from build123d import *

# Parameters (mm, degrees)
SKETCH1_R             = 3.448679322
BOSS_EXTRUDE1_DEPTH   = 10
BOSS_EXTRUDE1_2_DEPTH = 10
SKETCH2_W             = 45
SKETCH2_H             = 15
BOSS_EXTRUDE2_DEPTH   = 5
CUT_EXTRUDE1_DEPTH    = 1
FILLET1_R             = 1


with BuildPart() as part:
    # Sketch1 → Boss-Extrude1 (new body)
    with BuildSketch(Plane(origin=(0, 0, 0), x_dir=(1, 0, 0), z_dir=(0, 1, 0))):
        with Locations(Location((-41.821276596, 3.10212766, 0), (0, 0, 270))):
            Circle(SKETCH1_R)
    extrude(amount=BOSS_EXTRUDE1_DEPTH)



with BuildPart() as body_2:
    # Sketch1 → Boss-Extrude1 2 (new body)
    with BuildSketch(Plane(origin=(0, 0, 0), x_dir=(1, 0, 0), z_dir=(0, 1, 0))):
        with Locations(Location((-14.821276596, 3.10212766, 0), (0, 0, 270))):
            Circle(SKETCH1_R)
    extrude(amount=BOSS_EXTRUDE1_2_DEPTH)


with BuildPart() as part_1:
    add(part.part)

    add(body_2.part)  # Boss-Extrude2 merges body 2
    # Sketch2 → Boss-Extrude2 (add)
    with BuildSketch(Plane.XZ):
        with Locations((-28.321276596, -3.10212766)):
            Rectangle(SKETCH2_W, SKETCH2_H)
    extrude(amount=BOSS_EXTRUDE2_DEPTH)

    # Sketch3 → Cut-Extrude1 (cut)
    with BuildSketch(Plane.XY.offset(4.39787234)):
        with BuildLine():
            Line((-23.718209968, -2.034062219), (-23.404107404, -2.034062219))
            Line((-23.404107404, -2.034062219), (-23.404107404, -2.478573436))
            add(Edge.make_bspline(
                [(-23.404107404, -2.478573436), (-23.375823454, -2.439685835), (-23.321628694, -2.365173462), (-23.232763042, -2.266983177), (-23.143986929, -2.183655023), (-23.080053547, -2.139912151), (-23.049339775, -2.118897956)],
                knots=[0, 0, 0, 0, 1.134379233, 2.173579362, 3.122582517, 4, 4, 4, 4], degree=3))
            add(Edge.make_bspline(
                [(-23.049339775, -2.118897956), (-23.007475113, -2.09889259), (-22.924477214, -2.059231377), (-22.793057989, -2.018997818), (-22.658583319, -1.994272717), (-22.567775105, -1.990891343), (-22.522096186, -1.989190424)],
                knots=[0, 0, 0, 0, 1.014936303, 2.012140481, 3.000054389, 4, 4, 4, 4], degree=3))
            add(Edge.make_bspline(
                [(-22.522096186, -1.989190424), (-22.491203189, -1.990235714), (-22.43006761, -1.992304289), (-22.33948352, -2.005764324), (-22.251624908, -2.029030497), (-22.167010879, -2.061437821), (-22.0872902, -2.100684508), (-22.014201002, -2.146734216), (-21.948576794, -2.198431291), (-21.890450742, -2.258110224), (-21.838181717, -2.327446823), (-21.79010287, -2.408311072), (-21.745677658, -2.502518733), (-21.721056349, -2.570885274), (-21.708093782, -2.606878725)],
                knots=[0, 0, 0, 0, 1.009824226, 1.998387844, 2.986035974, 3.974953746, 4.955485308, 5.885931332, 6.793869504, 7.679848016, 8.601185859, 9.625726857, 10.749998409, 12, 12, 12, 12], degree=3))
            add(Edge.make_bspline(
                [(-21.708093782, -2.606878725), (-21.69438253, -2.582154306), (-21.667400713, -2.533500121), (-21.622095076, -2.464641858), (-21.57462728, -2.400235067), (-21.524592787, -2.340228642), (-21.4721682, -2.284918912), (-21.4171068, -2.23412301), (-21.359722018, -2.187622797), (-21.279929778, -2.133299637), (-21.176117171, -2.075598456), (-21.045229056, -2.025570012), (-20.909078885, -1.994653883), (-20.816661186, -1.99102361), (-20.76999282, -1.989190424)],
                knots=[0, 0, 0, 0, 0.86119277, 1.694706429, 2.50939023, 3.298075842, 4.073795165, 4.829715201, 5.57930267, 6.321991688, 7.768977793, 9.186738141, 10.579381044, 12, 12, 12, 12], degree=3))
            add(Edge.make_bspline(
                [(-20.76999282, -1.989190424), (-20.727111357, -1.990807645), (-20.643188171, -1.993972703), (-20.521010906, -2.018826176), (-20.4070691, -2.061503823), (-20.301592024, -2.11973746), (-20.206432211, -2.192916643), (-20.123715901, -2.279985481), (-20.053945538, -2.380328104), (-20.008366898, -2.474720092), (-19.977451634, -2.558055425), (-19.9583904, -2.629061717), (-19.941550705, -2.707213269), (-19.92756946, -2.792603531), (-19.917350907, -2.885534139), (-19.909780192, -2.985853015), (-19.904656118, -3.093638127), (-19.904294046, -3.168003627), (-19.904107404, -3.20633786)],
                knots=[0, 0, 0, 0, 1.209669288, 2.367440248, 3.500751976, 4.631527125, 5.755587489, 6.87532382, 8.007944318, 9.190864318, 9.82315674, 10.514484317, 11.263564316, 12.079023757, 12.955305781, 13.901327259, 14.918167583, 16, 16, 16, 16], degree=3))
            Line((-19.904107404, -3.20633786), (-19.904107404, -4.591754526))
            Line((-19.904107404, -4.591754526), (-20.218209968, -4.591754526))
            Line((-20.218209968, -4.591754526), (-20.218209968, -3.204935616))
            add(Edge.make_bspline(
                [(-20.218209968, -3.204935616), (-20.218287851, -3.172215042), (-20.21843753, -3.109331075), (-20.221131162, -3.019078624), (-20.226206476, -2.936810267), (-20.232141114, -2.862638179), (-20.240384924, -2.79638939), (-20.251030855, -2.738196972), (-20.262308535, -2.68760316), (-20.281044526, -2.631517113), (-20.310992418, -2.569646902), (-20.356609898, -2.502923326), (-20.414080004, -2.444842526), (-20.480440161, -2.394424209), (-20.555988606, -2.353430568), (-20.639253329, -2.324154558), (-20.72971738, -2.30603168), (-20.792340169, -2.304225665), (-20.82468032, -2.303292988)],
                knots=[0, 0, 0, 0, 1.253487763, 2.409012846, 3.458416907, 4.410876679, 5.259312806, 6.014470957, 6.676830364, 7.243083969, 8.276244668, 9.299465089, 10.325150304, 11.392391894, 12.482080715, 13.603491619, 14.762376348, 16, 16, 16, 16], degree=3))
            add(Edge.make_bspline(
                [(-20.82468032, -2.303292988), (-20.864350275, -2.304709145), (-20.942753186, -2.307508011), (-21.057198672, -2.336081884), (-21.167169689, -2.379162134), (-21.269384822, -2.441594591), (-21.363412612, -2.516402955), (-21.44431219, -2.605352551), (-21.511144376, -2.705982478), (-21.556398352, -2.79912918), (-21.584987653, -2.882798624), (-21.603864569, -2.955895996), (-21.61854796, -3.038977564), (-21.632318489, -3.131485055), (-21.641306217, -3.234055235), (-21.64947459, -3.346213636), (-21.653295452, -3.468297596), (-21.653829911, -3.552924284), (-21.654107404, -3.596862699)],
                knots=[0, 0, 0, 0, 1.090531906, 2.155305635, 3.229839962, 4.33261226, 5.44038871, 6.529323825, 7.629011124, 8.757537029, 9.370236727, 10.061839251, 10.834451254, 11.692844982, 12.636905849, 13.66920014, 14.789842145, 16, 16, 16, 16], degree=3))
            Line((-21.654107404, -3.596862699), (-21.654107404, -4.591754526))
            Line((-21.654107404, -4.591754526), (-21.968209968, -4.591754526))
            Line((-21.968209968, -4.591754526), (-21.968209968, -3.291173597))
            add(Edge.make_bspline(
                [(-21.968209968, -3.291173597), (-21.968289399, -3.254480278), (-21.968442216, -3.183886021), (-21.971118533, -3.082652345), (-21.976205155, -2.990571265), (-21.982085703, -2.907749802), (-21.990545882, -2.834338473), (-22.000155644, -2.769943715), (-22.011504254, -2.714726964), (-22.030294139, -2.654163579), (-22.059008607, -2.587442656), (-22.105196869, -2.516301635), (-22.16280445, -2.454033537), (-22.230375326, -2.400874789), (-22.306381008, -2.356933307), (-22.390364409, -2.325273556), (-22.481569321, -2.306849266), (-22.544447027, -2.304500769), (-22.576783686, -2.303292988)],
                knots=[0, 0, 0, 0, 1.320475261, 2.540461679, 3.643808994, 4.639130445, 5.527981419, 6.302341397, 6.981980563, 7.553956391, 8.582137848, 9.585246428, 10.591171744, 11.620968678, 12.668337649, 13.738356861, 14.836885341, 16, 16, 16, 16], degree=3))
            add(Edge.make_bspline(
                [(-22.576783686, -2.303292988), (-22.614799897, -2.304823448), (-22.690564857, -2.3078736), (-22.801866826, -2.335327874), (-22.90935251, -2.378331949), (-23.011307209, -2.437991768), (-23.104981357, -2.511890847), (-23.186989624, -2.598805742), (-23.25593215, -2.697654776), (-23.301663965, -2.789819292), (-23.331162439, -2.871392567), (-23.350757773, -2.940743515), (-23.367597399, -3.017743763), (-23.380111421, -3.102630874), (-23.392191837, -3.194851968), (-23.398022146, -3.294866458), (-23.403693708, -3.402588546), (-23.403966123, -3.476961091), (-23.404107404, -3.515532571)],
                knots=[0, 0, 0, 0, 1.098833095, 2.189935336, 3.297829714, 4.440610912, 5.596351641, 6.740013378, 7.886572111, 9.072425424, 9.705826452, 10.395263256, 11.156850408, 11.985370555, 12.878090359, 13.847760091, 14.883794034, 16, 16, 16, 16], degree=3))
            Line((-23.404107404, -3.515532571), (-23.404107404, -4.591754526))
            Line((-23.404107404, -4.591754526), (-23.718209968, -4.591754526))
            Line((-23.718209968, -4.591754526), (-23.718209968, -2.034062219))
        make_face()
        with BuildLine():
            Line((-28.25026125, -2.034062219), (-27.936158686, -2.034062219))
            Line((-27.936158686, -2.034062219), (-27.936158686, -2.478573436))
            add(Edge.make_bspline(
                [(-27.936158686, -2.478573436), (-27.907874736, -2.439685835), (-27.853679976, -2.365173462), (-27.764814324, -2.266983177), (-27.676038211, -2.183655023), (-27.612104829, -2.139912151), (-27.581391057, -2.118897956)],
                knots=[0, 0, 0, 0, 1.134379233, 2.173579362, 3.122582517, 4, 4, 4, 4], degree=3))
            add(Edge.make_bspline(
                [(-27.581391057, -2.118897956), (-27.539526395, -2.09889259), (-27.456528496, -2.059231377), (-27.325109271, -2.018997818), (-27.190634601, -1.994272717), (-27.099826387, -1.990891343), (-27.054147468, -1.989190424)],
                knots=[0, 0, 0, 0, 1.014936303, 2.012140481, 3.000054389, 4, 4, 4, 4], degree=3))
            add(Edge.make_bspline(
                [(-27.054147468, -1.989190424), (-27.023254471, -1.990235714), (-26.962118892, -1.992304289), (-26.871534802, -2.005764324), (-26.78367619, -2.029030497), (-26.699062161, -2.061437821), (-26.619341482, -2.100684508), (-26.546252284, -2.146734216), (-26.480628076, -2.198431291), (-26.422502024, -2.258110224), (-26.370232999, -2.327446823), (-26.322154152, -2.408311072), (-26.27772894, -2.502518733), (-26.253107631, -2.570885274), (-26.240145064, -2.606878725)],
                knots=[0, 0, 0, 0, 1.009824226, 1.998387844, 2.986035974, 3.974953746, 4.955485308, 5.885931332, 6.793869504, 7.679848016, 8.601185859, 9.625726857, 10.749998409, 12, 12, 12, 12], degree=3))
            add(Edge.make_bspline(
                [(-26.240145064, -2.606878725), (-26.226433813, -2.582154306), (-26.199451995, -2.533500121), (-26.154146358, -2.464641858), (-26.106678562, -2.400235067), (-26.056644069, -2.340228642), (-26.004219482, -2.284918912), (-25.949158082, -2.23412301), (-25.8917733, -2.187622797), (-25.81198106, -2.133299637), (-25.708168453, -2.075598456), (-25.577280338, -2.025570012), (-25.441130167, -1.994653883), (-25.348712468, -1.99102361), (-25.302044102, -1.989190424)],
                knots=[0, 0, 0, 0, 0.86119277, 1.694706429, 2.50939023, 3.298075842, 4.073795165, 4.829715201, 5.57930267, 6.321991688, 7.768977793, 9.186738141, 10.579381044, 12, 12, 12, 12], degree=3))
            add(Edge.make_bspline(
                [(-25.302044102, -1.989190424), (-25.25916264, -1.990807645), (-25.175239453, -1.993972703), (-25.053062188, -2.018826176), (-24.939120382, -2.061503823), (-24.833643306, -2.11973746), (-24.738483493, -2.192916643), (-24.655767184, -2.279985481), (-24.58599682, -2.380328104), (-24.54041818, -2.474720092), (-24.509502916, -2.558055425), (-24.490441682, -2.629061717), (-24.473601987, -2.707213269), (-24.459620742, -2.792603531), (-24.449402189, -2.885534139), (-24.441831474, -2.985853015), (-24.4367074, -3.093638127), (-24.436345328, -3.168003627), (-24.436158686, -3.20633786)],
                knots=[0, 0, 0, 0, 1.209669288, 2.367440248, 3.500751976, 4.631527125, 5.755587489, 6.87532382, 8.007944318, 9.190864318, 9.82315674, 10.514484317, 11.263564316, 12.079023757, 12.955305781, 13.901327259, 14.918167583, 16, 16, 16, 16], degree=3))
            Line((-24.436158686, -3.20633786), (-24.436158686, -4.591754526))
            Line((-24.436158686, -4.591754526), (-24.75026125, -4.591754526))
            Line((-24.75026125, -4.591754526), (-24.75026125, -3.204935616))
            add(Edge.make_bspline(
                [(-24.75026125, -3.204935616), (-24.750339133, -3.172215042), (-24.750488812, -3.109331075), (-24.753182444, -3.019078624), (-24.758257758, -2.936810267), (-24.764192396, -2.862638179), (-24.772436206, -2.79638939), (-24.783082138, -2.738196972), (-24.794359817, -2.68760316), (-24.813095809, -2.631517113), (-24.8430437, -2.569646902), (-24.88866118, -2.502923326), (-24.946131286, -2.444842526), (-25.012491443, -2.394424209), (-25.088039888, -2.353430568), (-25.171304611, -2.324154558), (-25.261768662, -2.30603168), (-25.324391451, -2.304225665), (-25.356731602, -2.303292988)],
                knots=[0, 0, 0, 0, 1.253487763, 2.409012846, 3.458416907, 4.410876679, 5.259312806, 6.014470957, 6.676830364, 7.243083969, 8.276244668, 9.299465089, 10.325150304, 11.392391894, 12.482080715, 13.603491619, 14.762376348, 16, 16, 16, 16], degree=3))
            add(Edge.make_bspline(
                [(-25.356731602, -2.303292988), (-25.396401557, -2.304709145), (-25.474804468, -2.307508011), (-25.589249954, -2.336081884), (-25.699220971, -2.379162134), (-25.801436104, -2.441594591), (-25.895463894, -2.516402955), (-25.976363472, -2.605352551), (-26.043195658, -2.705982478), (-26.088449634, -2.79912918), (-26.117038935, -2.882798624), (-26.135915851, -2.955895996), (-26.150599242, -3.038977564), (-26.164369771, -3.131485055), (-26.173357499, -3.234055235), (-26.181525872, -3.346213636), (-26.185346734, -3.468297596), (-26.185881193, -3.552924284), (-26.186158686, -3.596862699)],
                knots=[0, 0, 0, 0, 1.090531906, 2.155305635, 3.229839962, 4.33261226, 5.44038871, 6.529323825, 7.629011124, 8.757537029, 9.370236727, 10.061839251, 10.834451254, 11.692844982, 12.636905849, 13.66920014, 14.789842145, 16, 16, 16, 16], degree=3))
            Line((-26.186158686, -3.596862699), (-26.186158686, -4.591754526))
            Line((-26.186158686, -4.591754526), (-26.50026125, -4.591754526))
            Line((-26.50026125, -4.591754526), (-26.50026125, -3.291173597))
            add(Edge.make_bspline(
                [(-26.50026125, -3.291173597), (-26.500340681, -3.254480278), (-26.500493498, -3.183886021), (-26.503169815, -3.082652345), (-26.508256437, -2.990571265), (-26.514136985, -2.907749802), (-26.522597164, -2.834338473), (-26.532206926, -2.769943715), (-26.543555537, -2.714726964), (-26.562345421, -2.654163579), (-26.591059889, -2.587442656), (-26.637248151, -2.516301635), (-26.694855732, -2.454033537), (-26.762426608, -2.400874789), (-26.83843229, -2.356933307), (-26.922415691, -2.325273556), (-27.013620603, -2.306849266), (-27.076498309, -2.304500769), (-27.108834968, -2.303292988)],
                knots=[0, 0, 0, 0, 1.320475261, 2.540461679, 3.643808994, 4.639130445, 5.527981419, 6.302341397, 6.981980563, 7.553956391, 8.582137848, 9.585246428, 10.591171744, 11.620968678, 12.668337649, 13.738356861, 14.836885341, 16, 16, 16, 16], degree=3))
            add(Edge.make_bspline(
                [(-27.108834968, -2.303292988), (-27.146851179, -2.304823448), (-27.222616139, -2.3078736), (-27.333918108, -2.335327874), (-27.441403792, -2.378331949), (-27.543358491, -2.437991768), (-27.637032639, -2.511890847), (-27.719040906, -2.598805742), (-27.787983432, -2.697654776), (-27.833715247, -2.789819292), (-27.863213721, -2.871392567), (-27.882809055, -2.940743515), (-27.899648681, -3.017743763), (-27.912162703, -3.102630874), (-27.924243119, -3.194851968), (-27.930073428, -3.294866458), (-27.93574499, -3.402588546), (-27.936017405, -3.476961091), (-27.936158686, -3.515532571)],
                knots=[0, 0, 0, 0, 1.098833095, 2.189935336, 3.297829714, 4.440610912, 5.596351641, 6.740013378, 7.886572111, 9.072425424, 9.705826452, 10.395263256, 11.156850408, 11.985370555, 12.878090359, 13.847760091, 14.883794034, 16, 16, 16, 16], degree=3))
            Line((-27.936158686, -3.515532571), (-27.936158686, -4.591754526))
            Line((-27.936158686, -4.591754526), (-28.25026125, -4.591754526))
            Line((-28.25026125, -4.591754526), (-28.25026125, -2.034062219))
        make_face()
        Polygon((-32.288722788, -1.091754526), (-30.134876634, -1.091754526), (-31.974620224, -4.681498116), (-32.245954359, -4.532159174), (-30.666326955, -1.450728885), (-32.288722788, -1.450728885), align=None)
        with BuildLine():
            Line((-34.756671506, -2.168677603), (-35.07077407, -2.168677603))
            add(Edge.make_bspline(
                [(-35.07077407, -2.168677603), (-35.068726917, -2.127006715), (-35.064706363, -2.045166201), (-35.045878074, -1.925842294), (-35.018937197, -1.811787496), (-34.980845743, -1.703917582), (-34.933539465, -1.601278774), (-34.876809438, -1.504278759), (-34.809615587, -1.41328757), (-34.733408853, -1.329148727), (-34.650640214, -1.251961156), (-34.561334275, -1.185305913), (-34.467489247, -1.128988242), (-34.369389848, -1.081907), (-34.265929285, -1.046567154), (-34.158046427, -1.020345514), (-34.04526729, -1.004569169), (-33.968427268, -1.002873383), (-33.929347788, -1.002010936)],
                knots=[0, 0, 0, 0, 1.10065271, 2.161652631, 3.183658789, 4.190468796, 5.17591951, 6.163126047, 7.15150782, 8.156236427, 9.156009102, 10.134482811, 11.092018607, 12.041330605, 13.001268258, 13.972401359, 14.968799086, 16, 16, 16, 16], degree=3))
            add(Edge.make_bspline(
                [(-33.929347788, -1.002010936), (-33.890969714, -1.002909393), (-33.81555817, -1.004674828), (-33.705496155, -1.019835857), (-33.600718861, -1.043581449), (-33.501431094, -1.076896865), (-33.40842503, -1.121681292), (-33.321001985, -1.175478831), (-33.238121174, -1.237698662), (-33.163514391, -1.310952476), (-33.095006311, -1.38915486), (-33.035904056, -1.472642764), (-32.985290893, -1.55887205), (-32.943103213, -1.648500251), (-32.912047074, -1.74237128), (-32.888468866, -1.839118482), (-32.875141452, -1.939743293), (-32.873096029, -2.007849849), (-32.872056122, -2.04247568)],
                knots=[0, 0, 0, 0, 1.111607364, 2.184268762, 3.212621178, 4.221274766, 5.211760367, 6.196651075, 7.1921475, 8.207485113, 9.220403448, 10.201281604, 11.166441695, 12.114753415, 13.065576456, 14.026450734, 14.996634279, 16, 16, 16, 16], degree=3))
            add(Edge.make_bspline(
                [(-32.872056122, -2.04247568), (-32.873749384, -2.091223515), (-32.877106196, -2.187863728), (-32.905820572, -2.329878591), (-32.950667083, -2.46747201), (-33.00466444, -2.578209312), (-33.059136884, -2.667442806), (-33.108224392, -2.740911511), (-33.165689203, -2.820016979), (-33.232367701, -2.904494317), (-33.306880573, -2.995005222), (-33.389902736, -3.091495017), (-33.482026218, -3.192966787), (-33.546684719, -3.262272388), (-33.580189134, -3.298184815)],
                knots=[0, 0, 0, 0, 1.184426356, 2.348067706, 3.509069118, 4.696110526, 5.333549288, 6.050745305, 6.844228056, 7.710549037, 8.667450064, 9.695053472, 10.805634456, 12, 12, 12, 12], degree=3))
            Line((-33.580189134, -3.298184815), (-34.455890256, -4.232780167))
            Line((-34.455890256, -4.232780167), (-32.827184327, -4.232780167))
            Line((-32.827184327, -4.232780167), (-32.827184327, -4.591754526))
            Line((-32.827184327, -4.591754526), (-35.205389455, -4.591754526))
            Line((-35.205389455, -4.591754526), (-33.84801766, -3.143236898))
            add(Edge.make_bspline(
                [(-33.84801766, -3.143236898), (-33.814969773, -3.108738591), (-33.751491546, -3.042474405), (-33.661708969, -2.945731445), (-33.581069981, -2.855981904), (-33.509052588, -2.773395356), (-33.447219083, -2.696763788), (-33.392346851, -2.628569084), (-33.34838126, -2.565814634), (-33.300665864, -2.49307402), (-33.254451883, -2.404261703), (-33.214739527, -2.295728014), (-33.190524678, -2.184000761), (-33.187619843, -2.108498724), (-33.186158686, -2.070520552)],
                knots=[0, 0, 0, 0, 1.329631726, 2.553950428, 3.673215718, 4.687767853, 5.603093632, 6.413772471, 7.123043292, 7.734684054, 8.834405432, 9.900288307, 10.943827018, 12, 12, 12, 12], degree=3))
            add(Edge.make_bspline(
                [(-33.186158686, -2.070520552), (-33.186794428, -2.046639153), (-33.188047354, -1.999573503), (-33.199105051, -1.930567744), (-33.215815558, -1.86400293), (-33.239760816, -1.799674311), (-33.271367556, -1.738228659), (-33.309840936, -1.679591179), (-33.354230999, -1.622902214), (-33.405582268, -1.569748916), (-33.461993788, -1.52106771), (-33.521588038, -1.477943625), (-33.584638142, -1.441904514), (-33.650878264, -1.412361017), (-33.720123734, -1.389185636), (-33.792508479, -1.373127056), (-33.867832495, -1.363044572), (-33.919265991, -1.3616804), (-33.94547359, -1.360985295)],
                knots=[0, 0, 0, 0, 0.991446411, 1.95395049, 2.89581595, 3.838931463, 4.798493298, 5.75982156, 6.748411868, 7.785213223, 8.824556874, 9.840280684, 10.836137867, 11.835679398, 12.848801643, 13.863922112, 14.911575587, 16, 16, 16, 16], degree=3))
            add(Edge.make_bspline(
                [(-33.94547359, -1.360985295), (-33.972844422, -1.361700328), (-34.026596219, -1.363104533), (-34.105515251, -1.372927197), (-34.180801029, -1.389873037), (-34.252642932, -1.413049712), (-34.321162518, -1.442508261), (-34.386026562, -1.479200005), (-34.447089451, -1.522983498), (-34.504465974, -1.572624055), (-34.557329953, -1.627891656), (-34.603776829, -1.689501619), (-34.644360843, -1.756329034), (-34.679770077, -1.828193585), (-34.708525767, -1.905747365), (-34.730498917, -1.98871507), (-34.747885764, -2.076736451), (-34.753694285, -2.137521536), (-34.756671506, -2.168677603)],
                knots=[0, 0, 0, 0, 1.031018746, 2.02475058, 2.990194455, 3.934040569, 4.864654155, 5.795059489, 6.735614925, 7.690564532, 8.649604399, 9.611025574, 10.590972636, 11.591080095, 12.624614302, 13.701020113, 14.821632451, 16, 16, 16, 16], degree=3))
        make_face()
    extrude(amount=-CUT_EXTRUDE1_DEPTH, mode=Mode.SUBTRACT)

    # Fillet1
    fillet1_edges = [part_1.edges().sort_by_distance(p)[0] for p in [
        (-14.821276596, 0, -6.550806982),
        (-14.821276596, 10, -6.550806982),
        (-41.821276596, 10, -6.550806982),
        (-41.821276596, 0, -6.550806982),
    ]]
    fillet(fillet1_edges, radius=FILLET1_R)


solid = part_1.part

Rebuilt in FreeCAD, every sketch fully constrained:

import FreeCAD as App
import Part
import Sketcher
from FreeCAD import Vector


def edges_at(feature, points):
    """Names of the edges that pass closest to the given points."""
    edges = feature.Shape.Edges
    near = lambda p: min(range(len(edges)), key=lambda i: edges[i].distToShape(Part.Vertex(*p))[0])
    return sorted({f"Edge{near(p) + 1}" for p in points})


def add_polygon(sketch, points):
    """Adds a closed chain of lines whose ends are joined by coincident constraints."""
    first, n = sketch.GeometryCount, len(points)
    for a, b in zip(points, points[1:] + points[:1]):
        sketch.addGeometry(Part.LineSegment(App.Vector(*a, 0), App.Vector(*b, 0)), False)
    for i in range(n):
        sketch.addConstraint(Sketcher.Constraint("Coincident", first + i, 2, first + (i + 1) % n, 1))

doc = App.newDocument("Part")
body = doc.addObject("PartDesign::Body", "Body")

sketch1 = body.newObject("Sketcher::SketchObject", "Sketch")
sketch1.AttachmentSupport = (doc.getObject("XZ_Plane"), [""])
sketch1.MapMode = "FlatFace"
sketch1.addGeometry(Part.Circle(Vector(-41.8, -3.1, 0), Vector(0, 0, 1), 3.4), False)
sketch1.addConstraint([
    Sketcher.Constraint("Diameter", 0, 6.897359),
    Sketcher.Constraint("DistanceX", 0, 3, -1, 1, 41.821277),
    Sketcher.Constraint("DistanceY", 0, 3, -1, 1, 3.102128),
])
pad1 = body.newObject("PartDesign::Pad", "Pad")
pad1.Profile = sketch1
pad1.Length = 10
pad1.Reversed = True
body2 = doc.addObject("PartDesign::Body", "Body001")

sketch2 = body2.newObject("Sketcher::SketchObject", "Sketch001")
sketch2.AttachmentSupport = (doc.getObject("XZ_Plane001"), [""])
sketch2.MapMode = "FlatFace"
sketch2.addGeometry(Part.Circle(Vector(-14.8, -3.1, 0), Vector(0, 0, 1), 3.4), False)
sketch2.addConstraint([
    Sketcher.Constraint("Diameter", 0, 6.897359),
    Sketcher.Constraint("DistanceX", 0, 3, -1, 1, 14.821277),
    Sketcher.Constraint("DistanceY", 0, 3, -1, 1, 3.102128),
])
pad2 = body2.newObject("PartDesign::Pad", "Pad001")
pad2.Profile = sketch2
pad2.Length = 10
pad2.Reversed = True
body.AllowCompound = True
doc.recompute()

boolean = body.newObject("PartDesign::Boolean", "Boolean")
boolean.Type = "Fuse"
boolean.addObjects([body2])

sketch3 = body.newObject("Sketcher::SketchObject", "Sketch002")
sketch3.AttachmentSupport = (doc.getObject("XZ_Plane"), [""])
sketch3.MapMode = "FlatFace"
add_polygon(sketch3, [(-51, 4), (-51, -11), (-6, -11), (-6, 4)])
sketch3.addConstraint([
    Sketcher.Constraint("Vertical", 0),
    Sketcher.Constraint("Horizontal", 1),
    Sketcher.Constraint("Vertical", 2),
    Sketcher.Constraint("Horizontal", 3),
    Sketcher.Constraint("DistanceX", 1, 1, 1, 2, 45.0),
    Sketcher.Constraint("DistanceY", 0, 2, 0, 1, 15.0),
    Sketcher.Constraint("DistanceX", 0, 2, -1, 1, 50.821277),
    Sketcher.Constraint("DistanceY", 0, 2, -1, 1, 10.602128),
])
pad3 = body.newObject("PartDesign::Pad", "Pad002")
pad3.Profile = sketch3
pad3.Length = 5

sketch4 = body.newObject("Sketcher::SketchObject", "Sketch003")
sketch4.AttachmentSupport = (doc.getObject("XY_Plane"), [""])
sketch4.MapMode = "FlatFace"
sketch4.AttachmentOffset = App.Placement(Vector(0, 0, 4.397872), App.Rotation())
sketch4.addGeometry(Part.LineSegment(Vector(-23.404107, -2.034062, 0), Vector(-23.71821, -2.034062, 0)), False)
sketch4.addGeometry(Part.LineSegment(Vector(-23.71821, -2.034062, 0), Vector(-23.71821, -4.591755, 0)), False)
sketch4.addGeometry(Part.LineSegment(Vector(-23.71821, -4.591755, 0), Vector(-23.404107, -4.591755, 0)), False)
sketch4.addGeometry(Part.LineSegment(Vector(-23.404107, -4.591755, 0), Vector(-23.404107, -3.515533, 0)), False)
sketch4.addGeometry(Part.BSplineCurve([Vector(-22.576784, -2.303293, 0), Vector(-22.6148, -2.304823, 0), Vector(-22.690565, -2.307874, 0), Vector(-22.801867, -2.335328, 0), Vector(-22.909353, -2.378332, 0), Vector(-23.011307, -2.437992, 0), Vector(-23.104981, -2.511891, 0), Vector(-23.18699, -2.598806, 0), Vector(-23.255932, -2.697655, 0), Vector(-23.301664, -2.789819, 0), Vector(-23.331162, -2.871393, 0), Vector(-23.350758, -2.940744, 0), Vector(-23.367597, -3.017744, 0), Vector(-23.380111, -3.102631, 0), Vector(-23.392192, -3.194852, 0), Vector(-23.398022, -3.294866, 0), Vector(-23.403694, -3.402589, 0), Vector(-23.403966, -3.476961, 0), Vector(-23.404107, -3.515533, 0)], [4, 1, 1, 1, 1, 1, 1, 1, 1, 1, 1, 1, 1, 1, 1, 1, 4], [0, 1.098833095, 2.189935336, 3.297829714, 4.440610912, 5.596351641, 6.740013378, 7.886572111, 9.072425424, 9.705826452, 10.395263256, 11.156850408, 11.985370555, 12.878090359, 13.847760091, 14.883794034, 16], False, 3, [1, 1, 1, 1, 1, 1, 1, 1, 1, 1, 1, 1, 1, 1, 1, 1, 1, 1, 1], False), False)
sketch4.addGeometry(Part.BSplineCurve([Vector(-21.96821, -3.291174, 0), Vector(-21.968289, -3.25448, 0), Vector(-21.968442, -3.183886, 0), Vector(-21.971119, -3.082652, 0), Vector(-21.976205, -2.990571, 0), Vector(-21.982086, -2.90775, 0), Vector(-21.990546, -2.834338, 0), Vector(-22.000156, -2.769944, 0), Vector(-22.011504, -2.714727, 0), Vector(-22.030294, -2.654164, 0), Vector(-22.059009, -2.587443, 0), Vector(-22.105197, -2.516302, 0), Vector(-22.162804, -2.454034, 0), Vector(-22.230375, -2.400875, 0), Vector(-22.306381, -2.356933, 0), Vector(-22.390364, -2.325274, 0), Vector(-22.481569, -2.306849, 0), Vector(-22.544447, -2.304501, 0), Vector(-22.576784, -2.303293, 0)], [4, 1, 1, 1, 1, 1, 1, 1, 1, 1, 1, 1, 1, 1, 1, 1, 4], [0, 1.320475261, 2.540461679, 3.643808994, 4.639130445, 5.527981419, 6.302341397, 6.981980563, 7.553956391, 8.582137848, 9.585246428, 10.591171744, 11.620968678, 12.668337649, 13.738356861, 14.836885341, 16], False, 3, [1, 1, 1, 1, 1, 1, 1, 1, 1, 1, 1, 1, 1, 1, 1, 1, 1, 1, 1], False), False)
sketch4.addGeometry(Part.LineSegment(Vector(-21.96821, -3.291174, 0), Vector(-21.96821, -4.591755, 0)), False)
sketch4.addGeometry(Part.LineSegment(Vector(-21.96821, -4.591755, 0), Vector(-21.654107, -4.591755, 0)), False)
sketch4.addGeometry(Part.LineSegment(Vector(-21.654107, -4.591755, 0), Vector(-21.654107, -3.596863, 0)), False)
sketch4.addGeometry(Part.BSplineCurve([Vector(-20.82468, -2.303293, 0), Vector(-20.86435, -2.304709, 0), Vector(-20.942753, -2.307508, 0), Vector(-21.057199, -2.336082, 0), Vector(-21.16717, -2.379162, 0), Vector(-21.269385, -2.441595, 0), Vector(-21.363413, -2.516403, 0), Vector(-21.444312, -2.605353, 0), Vector(-21.511144, -2.705982, 0), Vector(-21.556398, -2.799129, 0), Vector(-21.584988, -2.882799, 0), Vector(-21.603865, -2.955896, 0), Vector(-21.618548, -3.038978, 0), Vector(-21.632318, -3.131485, 0), Vector(-21.641306, -3.234055, 0), Vector(-21.649475, -3.346214, 0), Vector(-21.653295, -3.468298, 0), Vector(-21.65383, -3.552924, 0), Vector(-21.654107, -3.596863, 0)], [4, 1, 1, 1, 1, 1, 1, 1, 1, 1, 1, 1, 1, 1, 1, 1, 4], [0, 1.090531906, 2.155305635, 3.229839962, 4.33261226, 5.44038871, 6.529323825, 7.629011124, 8.757537029, 9.370236727, 10.061839251, 10.834451254, 11.692844982, 12.636905849, 13.66920014, 14.789842145, 16], False, 3, [1, 1, 1, 1, 1, 1, 1, 1, 1, 1, 1, 1, 1, 1, 1, 1, 1, 1, 1], False), False)
sketch4.addGeometry(Part.BSplineCurve([Vector(-20.21821, -3.204936, 0), Vector(-20.218288, -3.172215, 0), Vector(-20.218438, -3.109331, 0), Vector(-20.221131, -3.019079, 0), Vector(-20.226206, -2.93681, 0), Vector(-20.232141, -2.862638, 0), Vector(-20.240385, -2.796389, 0), Vector(-20.251031, -2.738197, 0), Vector(-20.262309, -2.687603, 0), Vector(-20.281045, -2.631517, 0), Vector(-20.310992, -2.569647, 0), Vector(-20.35661, -2.502923, 0), Vector(-20.41408, -2.444843, 0), Vector(-20.48044, -2.394424, 0), Vector(-20.555989, -2.353431, 0), Vector(-20.639253, -2.324155, 0), Vector(-20.729717, -2.306032, 0), Vector(-20.79234, -2.304226, 0), Vector(-20.82468, -2.303293, 0)], [4, 1, 1, 1, 1, 1, 1, 1, 1, 1, 1, 1, 1, 1, 1, 1, 4], [0, 1.253487763, 2.409012846, 3.458416907, 4.410876679, 5.259312806, 6.014470957, 6.676830364, 7.243083969, 8.276244668, 9.299465089, 10.325150304, 11.392391894, 12.482080715, 13.603491619, 14.762376348, 16], False, 3, [1, 1, 1, 1, 1, 1, 1, 1, 1, 1, 1, 1, 1, 1, 1, 1, 1, 1, 1], False), False)
sketch4.addGeometry(Part.LineSegment(Vector(-20.21821, -3.204936, 0), Vector(-20.21821, -4.591755, 0)), False)
sketch4.addGeometry(Part.LineSegment(Vector(-20.21821, -4.591755, 0), Vector(-19.904107, -4.591755, 0)), False)
sketch4.addGeometry(Part.LineSegment(Vector(-19.904107, -4.591755, 0), Vector(-19.904107, -3.206338, 0)), False)
sketch4.addGeometry(Part.BSplineCurve([Vector(-20.769993, -1.98919, 0), Vector(-20.727111, -1.990808, 0), Vector(-20.643188, -1.993973, 0), Vector(-20.521011, -2.018826, 0), Vector(-20.407069, -2.061504, 0), Vector(-20.301592, -2.119737, 0), Vector(-20.206432, -2.192917, 0), Vector(-20.123716, -2.279985, 0), Vector(-20.053946, -2.380328, 0), Vector(-20.008367, -2.47472, 0), Vector(-19.977452, -2.558055, 0), Vector(-19.95839, -2.629062, 0), Vector(-19.941551, -2.707213, 0), Vector(-19.927569, -2.792604, 0), Vector(-19.917351, -2.885534, 0), Vector(-19.90978, -2.985853, 0), Vector(-19.904656, -3.093638, 0), Vector(-19.904294, -3.168004, 0), Vector(-19.904107, -3.206338, 0)], [4, 1, 1, 1, 1, 1, 1, 1, 1, 1, 1, 1, 1, 1, 1, 1, 4], [0, 1.209669288, 2.367440248, 3.500751976, 4.631527125, 5.755587489, 6.87532382, 8.007944318, 9.190864318, 9.82315674, 10.514484317, 11.263564316, 12.079023757, 12.955305781, 13.901327259, 14.918167583, 16], False, 3, [1, 1, 1, 1, 1, 1, 1, 1, 1, 1, 1, 1, 1, 1, 1, 1, 1, 1, 1], False), False)
sketch4.addGeometry(Part.BSplineCurve([Vector(-21.708094, -2.606879, 0), Vector(-21.694383, -2.582154, 0), Vector(-21.667401, -2.5335, 0), Vector(-21.622095, -2.464642, 0), Vector(-21.574627, -2.400235, 0), Vector(-21.524593, -2.340229, 0), Vector(-21.472168, -2.284919, 0), Vector(-21.417107, -2.234123, 0), Vector(-21.359722, -2.187623, 0), Vector(-21.27993, -2.1333, 0), Vector(-21.176117, -2.075598, 0), Vector(-21.045229, -2.02557, 0), Vector(-20.909079, -1.994654, 0), Vector(-20.816661, -1.991024, 0), Vector(-20.769993, -1.98919, 0)], [4, 1, 1, 1, 1, 1, 1, 1, 1, 1, 1, 1, 4], [0, 0.86119277, 1.694706429, 2.50939023, 3.298075842, 4.073795165, 4.829715201, 5.57930267, 6.321991688, 7.768977793, 9.186738141, 10.579381044, 12], False, 3, [1, 1, 1, 1, 1, 1, 1, 1, 1, 1, 1, 1, 1, 1, 1], False), False)
sketch4.addGeometry(Part.BSplineCurve([Vector(-22.522096, -1.98919, 0), Vector(-22.491203, -1.990236, 0), Vector(-22.430068, -1.992304, 0), Vector(-22.339484, -2.005764, 0), Vector(-22.251625, -2.02903, 0), Vector(-22.167011, -2.061438, 0), Vector(-22.08729, -2.100685, 0), Vector(-22.014201, -2.146734, 0), Vector(-21.948577, -2.198431, 0), Vector(-21.890451, -2.25811, 0), Vector(-21.838182, -2.327447, 0), Vector(-21.790103, -2.408311, 0), Vector(-21.745678, -2.502519, 0), Vector(-21.721056, -2.570885, 0), Vector(-21.708094, -2.606879, 0)], [4, 1, 1, 1, 1, 1, 1, 1, 1, 1, 1, 1, 4], [0, 1.009824226, 1.998387844, 2.986035974, 3.974953746, 4.955485308, 5.885931332, 6.793869504, 7.679848016, 8.601185859, 9.625726857, 10.749998409, 12], False, 3, [1, 1, 1, 1, 1, 1, 1, 1, 1, 1, 1, 1, 1, 1, 1], False), False)
sketch4.addGeometry(Part.BSplineCurve([Vector(-23.04934, -2.118898, 0), Vector(-23.007475, -2.098893, 0), Vector(-22.924477, -2.059231, 0), Vector(-22.793058, -2.018998, 0), Vector(-22.658583, -1.994273, 0), Vector(-22.567775, -1.990891, 0), Vector(-22.522096, -1.98919, 0)], [4, 1, 1, 1, 4], [0, 1.014936303, 2.012140481, 3.000054389, 4], False, 3, [1, 1, 1, 1, 1, 1, 1], False), False)
sketch4.addGeometry(Part.BSplineCurve([Vector(-23.404107, -2.478573, 0), Vector(-23.375823, -2.439686, 0), Vector(-23.321629, -2.365173, 0), Vector(-23.232763, -2.266983, 0), Vector(-23.143987, -2.183655, 0), Vector(-23.080054, -2.139912, 0), Vector(-23.04934, -2.118898, 0)], [4, 1, 1, 1, 4], [0, 1.134379233, 2.173579362, 3.122582517, 4], False, 3, [1, 1, 1, 1, 1, 1, 1], False), False)
sketch4.addGeometry(Part.LineSegment(Vector(-23.404107, -2.478573, 0), Vector(-23.404107, -2.034062, 0)), False)
sketch4.addGeometry(Part.LineSegment(Vector(-27.936159, -2.034062, 0), Vector(-28.250261, -2.034062, 0)), False)
sketch4.addGeometry(Part.LineSegment(Vector(-28.250261, -2.034062, 0), Vector(-28.250261, -4.591755, 0)), False)
sketch4.addGeometry(Part.LineSegment(Vector(-28.250261, -4.591755, 0), Vector(-27.936159, -4.591755, 0)), False)
sketch4.addGeometry(Part.LineSegment(Vector(-27.936159, -4.591755, 0), Vector(-27.936159, -3.515533, 0)), False)
sketch4.addGeometry(Part.BSplineCurve([Vector(-27.108835, -2.303293, 0), Vector(-27.146851, -2.304823, 0), Vector(-27.222616, -2.307874, 0), Vector(-27.333918, -2.335328, 0), Vector(-27.441404, -2.378332, 0), Vector(-27.543358, -2.437992, 0), Vector(-27.637033, -2.511891, 0), Vector(-27.719041, -2.598806, 0), Vector(-27.787983, -2.697655, 0), Vector(-27.833715, -2.789819, 0), Vector(-27.863214, -2.871393, 0), Vector(-27.882809, -2.940744, 0), Vector(-27.899649, -3.017744, 0), Vector(-27.912163, -3.102631, 0), Vector(-27.924243, -3.194852, 0), Vector(-27.930073, -3.294866, 0), Vector(-27.935745, -3.402589, 0), Vector(-27.936017, -3.476961, 0), Vector(-27.936159, -3.515533, 0)], [4, 1, 1, 1, 1, 1, 1, 1, 1, 1, 1, 1, 1, 1, 1, 1, 4], [0, 1.098833095, 2.189935336, 3.297829714, 4.440610912, 5.596351641, 6.740013378, 7.886572111, 9.072425424, 9.705826452, 10.395263256, 11.156850408, 11.985370555, 12.878090359, 13.847760091, 14.883794034, 16], False, 3, [1, 1, 1, 1, 1, 1, 1, 1, 1, 1, 1, 1, 1, 1, 1, 1, 1, 1, 1], False), False)
sketch4.addGeometry(Part.BSplineCurve([Vector(-26.500261, -3.291174, 0), Vector(-26.500341, -3.25448, 0), Vector(-26.500493, -3.183886, 0), Vector(-26.50317, -3.082652, 0), Vector(-26.508256, -2.990571, 0), Vector(-26.514137, -2.90775, 0), Vector(-26.522597, -2.834338, 0), Vector(-26.532207, -2.769944, 0), Vector(-26.543556, -2.714727, 0), Vector(-26.562345, -2.654164, 0), Vector(-26.59106, -2.587443, 0), Vector(-26.637248, -2.516302, 0), Vector(-26.694856, -2.454034, 0), Vector(-26.762427, -2.400875, 0), Vector(-26.838432, -2.356933, 0), Vector(-26.922416, -2.325274, 0), Vector(-27.013621, -2.306849, 0), Vector(-27.076498, -2.304501, 0), Vector(-27.108835, -2.303293, 0)], [4, 1, 1, 1, 1, 1, 1, 1, 1, 1, 1, 1, 1, 1, 1, 1, 4], [0, 1.320475261, 2.540461679, 3.643808994, 4.639130445, 5.527981419, 6.302341397, 6.981980563, 7.553956391, 8.582137848, 9.585246428, 10.591171744, 11.620968678, 12.668337649, 13.738356861, 14.836885341, 16], False, 3, [1, 1, 1, 1, 1, 1, 1, 1, 1, 1, 1, 1, 1, 1, 1, 1, 1, 1, 1], False), False)
sketch4.addGeometry(Part.LineSegment(Vector(-26.500261, -3.291174, 0), Vector(-26.500261, -4.591755, 0)), False)
sketch4.addGeometry(Part.LineSegment(Vector(-26.500261, -4.591755, 0), Vector(-26.186159, -4.591755, 0)), False)
sketch4.addGeometry(Part.LineSegment(Vector(-26.186159, -4.591755, 0), Vector(-26.186159, -3.596863, 0)), False)
sketch4.addGeometry(Part.BSplineCurve([Vector(-25.356732, -2.303293, 0), Vector(-25.396402, -2.304709, 0), Vector(-25.474804, -2.307508, 0), Vector(-25.58925, -2.336082, 0), Vector(-25.699221, -2.379162, 0), Vector(-25.801436, -2.441595, 0), Vector(-25.895464, -2.516403, 0), Vector(-25.976363, -2.605353, 0), Vector(-26.043196, -2.705982, 0), Vector(-26.08845, -2.799129, 0), Vector(-26.117039, -2.882799, 0), Vector(-26.135916, -2.955896, 0), Vector(-26.150599, -3.038978, 0), Vector(-26.16437, -3.131485, 0), Vector(-26.173357, -3.234055, 0), Vector(-26.181526, -3.346214, 0), Vector(-26.185347, -3.468298, 0), Vector(-26.185881, -3.552924, 0), Vector(-26.186159, -3.596863, 0)], [4, 1, 1, 1, 1, 1, 1, 1, 1, 1, 1, 1, 1, 1, 1, 1, 4], [0, 1.090531906, 2.155305635, 3.229839962, 4.33261226, 5.44038871, 6.529323825, 7.629011124, 8.757537029, 9.370236727, 10.061839251, 10.834451254, 11.692844982, 12.636905849, 13.66920014, 14.789842145, 16], False, 3, [1, 1, 1, 1, 1, 1, 1, 1, 1, 1, 1, 1, 1, 1, 1, 1, 1, 1, 1], False), False)
sketch4.addGeometry(Part.BSplineCurve([Vector(-24.750261, -3.204936, 0), Vector(-24.750339, -3.172215, 0), Vector(-24.750489, -3.109331, 0), Vector(-24.753182, -3.019079, 0), Vector(-24.758258, -2.93681, 0), Vector(-24.764192, -2.862638, 0), Vector(-24.772436, -2.796389, 0), Vector(-24.783082, -2.738197, 0), Vector(-24.79436, -2.687603, 0), Vector(-24.813096, -2.631517, 0), Vector(-24.843044, -2.569647, 0), Vector(-24.888661, -2.502923, 0), Vector(-24.946131, -2.444843, 0), Vector(-25.012491, -2.394424, 0), Vector(-25.08804, -2.353431, 0), Vector(-25.171305, -2.324155, 0), Vector(-25.261769, -2.306032, 0), Vector(-25.324391, -2.304226, 0), Vector(-25.356732, -2.303293, 0)], [4, 1, 1, 1, 1, 1, 1, 1, 1, 1, 1, 1, 1, 1, 1, 1, 4], [0, 1.253487763, 2.409012846, 3.458416907, 4.410876679, 5.259312806, 6.014470957, 6.676830364, 7.243083969, 8.276244668, 9.299465089, 10.325150304, 11.392391894, 12.482080715, 13.603491619, 14.762376348, 16], False, 3, [1, 1, 1, 1, 1, 1, 1, 1, 1, 1, 1, 1, 1, 1, 1, 1, 1, 1, 1], False), False)
sketch4.addGeometry(Part.LineSegment(Vector(-24.750261, -3.204936, 0), Vector(-24.750261, -4.591755, 0)), False)
sketch4.addGeometry(Part.LineSegment(Vector(-24.750261, -4.591755, 0), Vector(-24.436159, -4.591755, 0)), False)
sketch4.addGeometry(Part.LineSegment(Vector(-24.436159, -4.591755, 0), Vector(-24.436159, -3.206338, 0)), False)
sketch4.addGeometry(Part.BSplineCurve([Vector(-25.302044, -1.98919, 0), Vector(-25.259163, -1.990808, 0), Vector(-25.175239, -1.993973, 0), Vector(-25.053062, -2.018826, 0), Vector(-24.93912, -2.061504, 0), Vector(-24.833643, -2.119737, 0), Vector(-24.738483, -2.192917, 0), Vector(-24.655767, -2.279985, 0), Vector(-24.585997, -2.380328, 0), Vector(-24.540418, -2.47472, 0), Vector(-24.509503, -2.558055, 0), Vector(-24.490442, -2.629062, 0), Vector(-24.473602, -2.707213, 0), Vector(-24.459621, -2.792604, 0), Vector(-24.449402, -2.885534, 0), Vector(-24.441831, -2.985853, 0), Vector(-24.436707, -3.093638, 0), Vector(-24.436345, -3.168004, 0), Vector(-24.436159, -3.206338, 0)], [4, 1, 1, 1, 1, 1, 1, 1, 1, 1, 1, 1, 1, 1, 1, 1, 4], [0, 1.209669288, 2.367440248, 3.500751976, 4.631527125, 5.755587489, 6.87532382, 8.007944318, 9.190864318, 9.82315674, 10.514484317, 11.263564316, 12.079023757, 12.955305781, 13.901327259, 14.918167583, 16], False, 3, [1, 1, 1, 1, 1, 1, 1, 1, 1, 1, 1, 1, 1, 1, 1, 1, 1, 1, 1], False), False)
sketch4.addGeometry(Part.BSplineCurve([Vector(-26.240145, -2.606879, 0), Vector(-26.226434, -2.582154, 0), Vector(-26.199452, -2.5335, 0), Vector(-26.154146, -2.464642, 0), Vector(-26.106679, -2.400235, 0), Vector(-26.056644, -2.340229, 0), Vector(-26.004219, -2.284919, 0), Vector(-25.949158, -2.234123, 0), Vector(-25.891773, -2.187623, 0), Vector(-25.811981, -2.1333, 0), Vector(-25.708168, -2.075598, 0), Vector(-25.57728, -2.02557, 0), Vector(-25.44113, -1.994654, 0), Vector(-25.348712, -1.991024, 0), Vector(-25.302044, -1.98919, 0)], [4, 1, 1, 1, 1, 1, 1, 1, 1, 1, 1, 1, 4], [0, 0.86119277, 1.694706429, 2.50939023, 3.298075842, 4.073795165, 4.829715201, 5.57930267, 6.321991688, 7.768977793, 9.186738141, 10.579381044, 12], False, 3, [1, 1, 1, 1, 1, 1, 1, 1, 1, 1, 1, 1, 1, 1, 1], False), False)
sketch4.addGeometry(Part.BSplineCurve([Vector(-27.054147, -1.98919, 0), Vector(-27.023254, -1.990236, 0), Vector(-26.962119, -1.992304, 0), Vector(-26.871535, -2.005764, 0), Vector(-26.783676, -2.02903, 0), Vector(-26.699062, -2.061438, 0), Vector(-26.619341, -2.100685, 0), Vector(-26.546252, -2.146734, 0), Vector(-26.480628, -2.198431, 0), Vector(-26.422502, -2.25811, 0), Vector(-26.370233, -2.327447, 0), Vector(-26.322154, -2.408311, 0), Vector(-26.277729, -2.502519, 0), Vector(-26.253108, -2.570885, 0), Vector(-26.240145, -2.606879, 0)], [4, 1, 1, 1, 1, 1, 1, 1, 1, 1, 1, 1, 4], [0, 1.009824226, 1.998387844, 2.986035974, 3.974953746, 4.955485308, 5.885931332, 6.793869504, 7.679848016, 8.601185859, 9.625726857, 10.749998409, 12], False, 3, [1, 1, 1, 1, 1, 1, 1, 1, 1, 1, 1, 1, 1, 1, 1], False), False)
sketch4.addGeometry(Part.BSplineCurve([Vector(-27.581391, -2.118898, 0), Vector(-27.539526, -2.098893, 0), Vector(-27.456528, -2.059231, 0), Vector(-27.325109, -2.018998, 0), Vector(-27.190635, -1.994273, 0), Vector(-27.099826, -1.990891, 0), Vector(-27.054147, -1.98919, 0)], [4, 1, 1, 1, 4], [0, 1.014936303, 2.012140481, 3.000054389, 4], False, 3, [1, 1, 1, 1, 1, 1, 1], False), False)
sketch4.addGeometry(Part.BSplineCurve([Vector(-27.936159, -2.478573, 0), Vector(-27.907875, -2.439686, 0), Vector(-27.85368, -2.365173, 0), Vector(-27.764814, -2.266983, 0), Vector(-27.676038, -2.183655, 0), Vector(-27.612105, -2.139912, 0), Vector(-27.581391, -2.118898, 0)], [4, 1, 1, 1, 4], [0, 1.134379233, 2.173579362, 3.122582517, 4], False, 3, [1, 1, 1, 1, 1, 1, 1], False), False)
sketch4.addGeometry(Part.LineSegment(Vector(-27.936159, -2.478573, 0), Vector(-27.936159, -2.034062, 0)), False)
add_polygon(sketch4, [(-30.134877, -1.091755), (-32.288723, -1.091755), (-32.288723, -1.450729), (-30.666327, -1.450729), (-32.245954, -4.532159), (-31.97462, -4.681498)])
sketch4.addGeometry(Part.LineSegment(Vector(-35.070774, -2.168678, 0), Vector(-34.756672, -2.168678, 0)), False)
sketch4.addGeometry(Part.BSplineCurve([Vector(-33.945474, -1.360985, 0), Vector(-33.972844, -1.3617, 0), Vector(-34.026596, -1.363105, 0), Vector(-34.105515, -1.372927, 0), Vector(-34.180801, -1.389873, 0), Vector(-34.252643, -1.41305, 0), Vector(-34.321163, -1.442508, 0), Vector(-34.386027, -1.4792, 0), Vector(-34.447089, -1.522983, 0), Vector(-34.504466, -1.572624, 0), Vector(-34.55733, -1.627892, 0), Vector(-34.603777, -1.689502, 0), Vector(-34.644361, -1.756329, 0), Vector(-34.67977, -1.828194, 0), Vector(-34.708526, -1.905747, 0), Vector(-34.730499, -1.988715, 0), Vector(-34.747886, -2.076736, 0), Vector(-34.753694, -2.137522, 0), Vector(-34.756672, -2.168678, 0)], [4, 1, 1, 1, 1, 1, 1, 1, 1, 1, 1, 1, 1, 1, 1, 1, 4], [0, 1.031018746, 2.02475058, 2.990194455, 3.934040569, 4.864654155, 5.795059489, 6.735614925, 7.690564532, 8.649604399, 9.611025574, 10.590972636, 11.591080095, 12.624614302, 13.701020113, 14.821632451, 16], False, 3, [1, 1, 1, 1, 1, 1, 1, 1, 1, 1, 1, 1, 1, 1, 1, 1, 1, 1, 1], False), False)
sketch4.addGeometry(Part.BSplineCurve([Vector(-33.186159, -2.070521, 0), Vector(-33.186794, -2.046639, 0), Vector(-33.188047, -1.999574, 0), Vector(-33.199105, -1.930568, 0), Vector(-33.215816, -1.864003, 0), Vector(-33.239761, -1.799674, 0), Vector(-33.271368, -1.738229, 0), Vector(-33.309841, -1.679591, 0), Vector(-33.354231, -1.622902, 0), Vector(-33.405582, -1.569749, 0), Vector(-33.461994, -1.521068, 0), Vector(-33.521588, -1.477944, 0), Vector(-33.584638, -1.441905, 0), Vector(-33.650878, -1.412361, 0), Vector(-33.720124, -1.389186, 0), Vector(-33.792508, -1.373127, 0), Vector(-33.867832, -1.363045, 0), Vector(-33.919266, -1.36168, 0), Vector(-33.945474, -1.360985, 0)], [4, 1, 1, 1, 1, 1, 1, 1, 1, 1, 1, 1, 1, 1, 1, 1, 4], [0, 0.991446411, 1.95395049, 2.89581595, 3.838931463, 4.798493298, 5.75982156, 6.748411868, 7.785213223, 8.824556874, 9.840280684, 10.836137867, 11.835679398, 12.848801643, 13.863922112, 14.911575587, 16], False, 3, [1, 1, 1, 1, 1, 1, 1, 1, 1, 1, 1, 1, 1, 1, 1, 1, 1, 1, 1], False), False)
sketch4.addGeometry(Part.BSplineCurve([Vector(-33.848018, -3.143237, 0), Vector(-33.81497, -3.108739, 0), Vector(-33.751492, -3.042474, 0), Vector(-33.661709, -2.945731, 0), Vector(-33.58107, -2.855982, 0), Vector(-33.509053, -2.773395, 0), Vector(-33.447219, -2.696764, 0), Vector(-33.392347, -2.628569, 0), Vector(-33.348381, -2.565815, 0), Vector(-33.300666, -2.493074, 0), Vector(-33.254452, -2.404262, 0), Vector(-33.21474, -2.295728, 0), Vector(-33.190525, -2.184001, 0), Vector(-33.18762, -2.108499, 0), Vector(-33.186159, -2.070521, 0)], [4, 1, 1, 1, 1, 1, 1, 1, 1, 1, 1, 1, 4], [0, 1.329631726, 2.553950428, 3.673215718, 4.687767853, 5.603093632, 6.413772471, 7.123043292, 7.734684054, 8.834405432, 9.900288307, 10.943827018, 12], False, 3, [1, 1, 1, 1, 1, 1, 1, 1, 1, 1, 1, 1, 1, 1, 1], False), False)
sketch4.addGeometry(Part.LineSegment(Vector(-33.848018, -3.143237, 0), Vector(-35.205389, -4.591755, 0)), False)
sketch4.addGeometry(Part.LineSegment(Vector(-35.205389, -4.591755, 0), Vector(-32.827184, -4.591755, 0)), False)
sketch4.addGeometry(Part.LineSegment(Vector(-32.827184, -4.591755, 0), Vector(-32.827184, -4.23278, 0)), False)
sketch4.addGeometry(Part.LineSegment(Vector(-32.827184, -4.23278, 0), Vector(-34.45589, -4.23278, 0)), False)
sketch4.addGeometry(Part.LineSegment(Vector(-34.45589, -4.23278, 0), Vector(-33.580189, -3.298185, 0)), False)
sketch4.addGeometry(Part.BSplineCurve([Vector(-32.872056, -2.042476, 0), Vector(-32.873749, -2.091224, 0), Vector(-32.877106, -2.187864, 0), Vector(-32.905821, -2.329879, 0), Vector(-32.950667, -2.467472, 0), Vector(-33.004664, -2.578209, 0), Vector(-33.059137, -2.667443, 0), Vector(-33.108224, -2.740912, 0), Vector(-33.165689, -2.820017, 0), Vector(-33.232368, -2.904494, 0), Vector(-33.306881, -2.995005, 0), Vector(-33.389903, -3.091495, 0), Vector(-33.482026, -3.192967, 0), Vector(-33.546685, -3.262272, 0), Vector(-33.580189, -3.298185, 0)], [4, 1, 1, 1, 1, 1, 1, 1, 1, 1, 1, 1, 4], [0, 1.184426356, 2.348067706, 3.509069118, 4.696110526, 5.333549288, 6.050745305, 6.844228056, 7.710549037, 8.667450064, 9.695053472, 10.805634456, 12], False, 3, [1, 1, 1, 1, 1, 1, 1, 1, 1, 1, 1, 1, 1, 1, 1], False), False)
sketch4.addGeometry(Part.BSplineCurve([Vector(-33.929348, -1.002011, 0), Vector(-33.89097, -1.002909, 0), Vector(-33.815558, -1.004675, 0), Vector(-33.705496, -1.019836, 0), Vector(-33.600719, -1.043581, 0), Vector(-33.501431, -1.076897, 0), Vector(-33.408425, -1.121681, 0), Vector(-33.321002, -1.175479, 0), Vector(-33.238121, -1.237699, 0), Vector(-33.163514, -1.310952, 0), Vector(-33.095006, -1.389155, 0), Vector(-33.035904, -1.472643, 0), Vector(-32.985291, -1.558872, 0), Vector(-32.943103, -1.6485, 0), Vector(-32.912047, -1.742371, 0), Vector(-32.888469, -1.839118, 0), Vector(-32.875141, -1.939743, 0), Vector(-32.873096, -2.00785, 0), Vector(-32.872056, -2.042476, 0)], [4, 1, 1, 1, 1, 1, 1, 1, 1, 1, 1, 1, 1, 1, 1, 1, 4], [0, 1.111607364, 2.184268762, 3.212621178, 4.221274766, 5.211760367, 6.196651075, 7.1921475, 8.207485113, 9.220403448, 10.201281604, 11.166441695, 12.114753415, 13.065576456, 14.026450734, 14.996634279, 16], False, 3, [1, 1, 1, 1, 1, 1, 1, 1, 1, 1, 1, 1, 1, 1, 1, 1, 1, 1, 1], False), False)
sketch4.addGeometry(Part.BSplineCurve([Vector(-35.070774, -2.168678, 0), Vector(-35.068727, -2.127007, 0), Vector(-35.064706, -2.045166, 0), Vector(-35.045878, -1.925842, 0), Vector(-35.018937, -1.811787, 0), Vector(-34.980846, -1.703918, 0), Vector(-34.933539, -1.601279, 0), Vector(-34.876809, -1.504279, 0), Vector(-34.809616, -1.413288, 0), Vector(-34.733409, -1.329149, 0), Vector(-34.65064, -1.251961, 0), Vector(-34.561334, -1.185306, 0), Vector(-34.467489, -1.128988, 0), Vector(-34.36939, -1.081907, 0), Vector(-34.265929, -1.046567, 0), Vector(-34.158046, -1.020346, 0), Vector(-34.045267, -1.004569, 0), Vector(-33.968427, -1.002873, 0), Vector(-33.929348, -1.002011, 0)], [4, 1, 1, 1, 1, 1, 1, 1, 1, 1, 1, 1, 1, 1, 1, 1, 4], [0, 1.10065271, 2.161652631, 3.183658789, 4.190468796, 5.17591951, 6.163126047, 7.15150782, 8.156236427, 9.156009102, 10.134482811, 11.092018607, 12.041330605, 13.001268258, 13.972401359, 14.968799086, 16], False, 3, [1, 1, 1, 1, 1, 1, 1, 1, 1, 1, 1, 1, 1, 1, 1, 1, 1, 1, 1], False), False)
sketch4.addConstraint([
    Sketcher.Constraint("Block", 4),
    Sketcher.Constraint("Block", 5),
    Sketcher.Constraint("Block", 9),
    Sketcher.Constraint("Block", 10),
    Sketcher.Constraint("Block", 14),
    Sketcher.Constraint("Block", 15),
    Sketcher.Constraint("Block", 16),
    Sketcher.Constraint("Block", 17),
    Sketcher.Constraint("Block", 18),
    Sketcher.Constraint("Block", 24),
    Sketcher.Constraint("Block", 25),
    Sketcher.Constraint("Block", 29),
    Sketcher.Constraint("Block", 30),
    Sketcher.Constraint("Block", 34),
    Sketcher.Constraint("Block", 35),
    Sketcher.Constraint("Block", 36),
    Sketcher.Constraint("Block", 37),
    Sketcher.Constraint("Block", 38),
    Sketcher.Constraint("Block", 47),
    Sketcher.Constraint("Block", 48),
    Sketcher.Constraint("Block", 49),
    Sketcher.Constraint("Block", 55),
    Sketcher.Constraint("Block", 56),
    Sketcher.Constraint("Block", 57),
    Sketcher.Constraint("Coincident", 0, 2, 1, 1),
    Sketcher.Constraint("Coincident", 1, 2, 2, 1),
    Sketcher.Constraint("Coincident", 2, 2, 3, 1),
    Sketcher.Constraint("Coincident", 3, 2, 4, 2),
    Sketcher.Constraint("Coincident", 5, 1, 6, 1),
    Sketcher.Constraint("Coincident", 6, 2, 7, 1),
    Sketcher.Constraint("Coincident", 7, 2, 8, 1),
    Sketcher.Constraint("Coincident", 8, 2, 9, 2),
    Sketcher.Constraint("Coincident", 10, 1, 11, 1),
    Sketcher.Constraint("Coincident", 11, 2, 12, 1),
    Sketcher.Constraint("Coincident", 12, 2, 13, 1),
    Sketcher.Constraint("Coincident", 13, 2, 14, 2),
    Sketcher.Constraint("Coincident", 18, 1, 19, 1),
    Sketcher.Constraint("Coincident", 19, 2, 0, 1),
    Sketcher.Constraint("Coincident", 20, 2, 21, 1),
    Sketcher.Constraint("Coincident", 21, 2, 22, 1),
    Sketcher.Constraint("Coincident", 22, 2, 23, 1),
    Sketcher.Constraint("Coincident", 23, 2, 24, 2),
    Sketcher.Constraint("Coincident", 25, 1, 26, 1),
    Sketcher.Constraint("Coincident", 26, 2, 27, 1),
    Sketcher.Constraint("Coincident", 27, 2, 28, 1),
    Sketcher.Constraint("Coincident", 28, 2, 29, 2),
    Sketcher.Constraint("Coincident", 30, 1, 31, 1),
    Sketcher.Constraint("Coincident", 31, 2, 32, 1),
    Sketcher.Constraint("Coincident", 32, 2, 33, 1),
    Sketcher.Constraint("Coincident", 33, 2, 34, 2),
    Sketcher.Constraint("Coincident", 38, 1, 39, 1),
    Sketcher.Constraint("Coincident", 39, 2, 20, 1),
    Sketcher.Constraint("Coincident", 46, 2, 47, 2),
    Sketcher.Constraint("Coincident", 49, 1, 50, 1),
    Sketcher.Constraint("Coincident", 50, 2, 51, 1),
    Sketcher.Constraint("Coincident", 51, 2, 52, 1),
    Sketcher.Constraint("Coincident", 52, 2, 53, 1),
    Sketcher.Constraint("Coincident", 53, 2, 54, 1),
    Sketcher.Constraint("Coincident", 54, 2, 55, 2),
    Sketcher.Constraint("Coincident", 57, 1, 46, 1),
    Sketcher.Constraint("Horizontal", 0),
    Sketcher.Constraint("Vertical", 1),
    Sketcher.Constraint("Horizontal", 2),
    Sketcher.Constraint("Vertical", 3),
    Sketcher.Constraint("Vertical", 6),
    Sketcher.Constraint("Horizontal", 7),
    Sketcher.Constraint("Vertical", 8),
    Sketcher.Constraint("Vertical", 11),
    Sketcher.Constraint("Horizontal", 12),
    Sketcher.Constraint("Vertical", 13),
    Sketcher.Constraint("Vertical", 19),
    Sketcher.Constraint("Horizontal", 20),
    Sketcher.Constraint("Vertical", 21),
    Sketcher.Constraint("Horizontal", 22),
    Sketcher.Constraint("Vertical", 23),
    Sketcher.Constraint("Vertical", 26),
    Sketcher.Constraint("Horizontal", 27),
    Sketcher.Constraint("Vertical", 28),
    Sketcher.Constraint("Vertical", 31),
    Sketcher.Constraint("Horizontal", 32),
    Sketcher.Constraint("Vertical", 33),
    Sketcher.Constraint("Vertical", 39),
    Sketcher.Constraint("Horizontal", 40),
    Sketcher.Constraint("Vertical", 41),
    Sketcher.Constraint("Horizontal", 42),
    Sketcher.Constraint("Horizontal", 51),
    Sketcher.Constraint("Vertical", 52),
    Sketcher.Constraint("Horizontal", 53),
    Sketcher.Constraint("DistanceY", 21, 2, 40, 2, 3.5),
    Sketcher.Constraint("DistanceY", 50, 2, 40, 2, 3.5),
    Sketcher.Constraint("DistanceX", 1, 2, 6, 2, 1.75),
    Sketcher.Constraint("DistanceX", 21, 2, 26, 2, 1.75),
    Sketcher.Constraint("DistanceY", 3, 1, 3, 2, 1.076222),
    Sketcher.Constraint("DistanceY", 6, 2, 6, 1, 1.300581),
    Sketcher.Constraint("DistanceY", 11, 2, 11, 1, 1.386819),
    Sketcher.Constraint("DistanceY", 19, 1, 19, 2, 0.444511),
    Sketcher.Constraint("DistanceY", 23, 1, 23, 2, 1.076222),
    Sketcher.Constraint("DistanceY", 26, 2, 26, 1, 1.300581),
    Sketcher.Constraint("DistanceY", 31, 2, 31, 1, 1.386819),
    Sketcher.Constraint("DistanceY", 39, 1, 39, 2, 0.444511),
    Sketcher.Constraint("DistanceY", 44, 2, -1, 1, 4.681498),
    Sketcher.Constraint("DistanceX", 50, 2, 53, 2, 0.749499),
    Sketcher.Constraint("DistanceX", 53, 2, 54, 2, 0.875701),
    Sketcher.Constraint("Distance", 43, 3.462721),
    Sketcher.Constraint("Distance", 54, 1.28075),
    Sketcher.Constraint("DistanceX", 40, 2, 40, 1, 2.153846),
    Sketcher.Constraint("DistanceX", 42, 1, 42, 2, 1.622396),
    Sketcher.Constraint("DistanceX", 51, 1, 51, 2, 2.378205),
    Sketcher.Constraint("DistanceY", 41, 2, 41, 1, 0.358974),
    Sketcher.Constraint("DistanceY", 43, 2, -1, 1, 4.532159),
    Sketcher.Constraint("DistanceX", 44, 2, -1, 1, 31.97462),
    Sketcher.Constraint("DistanceX", 40, 2, 20, 2, 4.038462),
])
pocket1 = body.newObject("PartDesign::Pocket", "Pocket")
pocket1.Profile = sketch4
pocket1.Length = 1
doc.recompute()

fillet = body.newObject("PartDesign::Fillet", "Fillet")
fillet.Base = (pocket1, edges_at(pocket1, [
    (-14.821, 0, -6.551),
    (-14.821, 10, -6.551),
    (-41.821, 10, -6.551),
    (-41.821, 0, -6.551),
]))
fillet.Radius = 1

doc.recompute()
